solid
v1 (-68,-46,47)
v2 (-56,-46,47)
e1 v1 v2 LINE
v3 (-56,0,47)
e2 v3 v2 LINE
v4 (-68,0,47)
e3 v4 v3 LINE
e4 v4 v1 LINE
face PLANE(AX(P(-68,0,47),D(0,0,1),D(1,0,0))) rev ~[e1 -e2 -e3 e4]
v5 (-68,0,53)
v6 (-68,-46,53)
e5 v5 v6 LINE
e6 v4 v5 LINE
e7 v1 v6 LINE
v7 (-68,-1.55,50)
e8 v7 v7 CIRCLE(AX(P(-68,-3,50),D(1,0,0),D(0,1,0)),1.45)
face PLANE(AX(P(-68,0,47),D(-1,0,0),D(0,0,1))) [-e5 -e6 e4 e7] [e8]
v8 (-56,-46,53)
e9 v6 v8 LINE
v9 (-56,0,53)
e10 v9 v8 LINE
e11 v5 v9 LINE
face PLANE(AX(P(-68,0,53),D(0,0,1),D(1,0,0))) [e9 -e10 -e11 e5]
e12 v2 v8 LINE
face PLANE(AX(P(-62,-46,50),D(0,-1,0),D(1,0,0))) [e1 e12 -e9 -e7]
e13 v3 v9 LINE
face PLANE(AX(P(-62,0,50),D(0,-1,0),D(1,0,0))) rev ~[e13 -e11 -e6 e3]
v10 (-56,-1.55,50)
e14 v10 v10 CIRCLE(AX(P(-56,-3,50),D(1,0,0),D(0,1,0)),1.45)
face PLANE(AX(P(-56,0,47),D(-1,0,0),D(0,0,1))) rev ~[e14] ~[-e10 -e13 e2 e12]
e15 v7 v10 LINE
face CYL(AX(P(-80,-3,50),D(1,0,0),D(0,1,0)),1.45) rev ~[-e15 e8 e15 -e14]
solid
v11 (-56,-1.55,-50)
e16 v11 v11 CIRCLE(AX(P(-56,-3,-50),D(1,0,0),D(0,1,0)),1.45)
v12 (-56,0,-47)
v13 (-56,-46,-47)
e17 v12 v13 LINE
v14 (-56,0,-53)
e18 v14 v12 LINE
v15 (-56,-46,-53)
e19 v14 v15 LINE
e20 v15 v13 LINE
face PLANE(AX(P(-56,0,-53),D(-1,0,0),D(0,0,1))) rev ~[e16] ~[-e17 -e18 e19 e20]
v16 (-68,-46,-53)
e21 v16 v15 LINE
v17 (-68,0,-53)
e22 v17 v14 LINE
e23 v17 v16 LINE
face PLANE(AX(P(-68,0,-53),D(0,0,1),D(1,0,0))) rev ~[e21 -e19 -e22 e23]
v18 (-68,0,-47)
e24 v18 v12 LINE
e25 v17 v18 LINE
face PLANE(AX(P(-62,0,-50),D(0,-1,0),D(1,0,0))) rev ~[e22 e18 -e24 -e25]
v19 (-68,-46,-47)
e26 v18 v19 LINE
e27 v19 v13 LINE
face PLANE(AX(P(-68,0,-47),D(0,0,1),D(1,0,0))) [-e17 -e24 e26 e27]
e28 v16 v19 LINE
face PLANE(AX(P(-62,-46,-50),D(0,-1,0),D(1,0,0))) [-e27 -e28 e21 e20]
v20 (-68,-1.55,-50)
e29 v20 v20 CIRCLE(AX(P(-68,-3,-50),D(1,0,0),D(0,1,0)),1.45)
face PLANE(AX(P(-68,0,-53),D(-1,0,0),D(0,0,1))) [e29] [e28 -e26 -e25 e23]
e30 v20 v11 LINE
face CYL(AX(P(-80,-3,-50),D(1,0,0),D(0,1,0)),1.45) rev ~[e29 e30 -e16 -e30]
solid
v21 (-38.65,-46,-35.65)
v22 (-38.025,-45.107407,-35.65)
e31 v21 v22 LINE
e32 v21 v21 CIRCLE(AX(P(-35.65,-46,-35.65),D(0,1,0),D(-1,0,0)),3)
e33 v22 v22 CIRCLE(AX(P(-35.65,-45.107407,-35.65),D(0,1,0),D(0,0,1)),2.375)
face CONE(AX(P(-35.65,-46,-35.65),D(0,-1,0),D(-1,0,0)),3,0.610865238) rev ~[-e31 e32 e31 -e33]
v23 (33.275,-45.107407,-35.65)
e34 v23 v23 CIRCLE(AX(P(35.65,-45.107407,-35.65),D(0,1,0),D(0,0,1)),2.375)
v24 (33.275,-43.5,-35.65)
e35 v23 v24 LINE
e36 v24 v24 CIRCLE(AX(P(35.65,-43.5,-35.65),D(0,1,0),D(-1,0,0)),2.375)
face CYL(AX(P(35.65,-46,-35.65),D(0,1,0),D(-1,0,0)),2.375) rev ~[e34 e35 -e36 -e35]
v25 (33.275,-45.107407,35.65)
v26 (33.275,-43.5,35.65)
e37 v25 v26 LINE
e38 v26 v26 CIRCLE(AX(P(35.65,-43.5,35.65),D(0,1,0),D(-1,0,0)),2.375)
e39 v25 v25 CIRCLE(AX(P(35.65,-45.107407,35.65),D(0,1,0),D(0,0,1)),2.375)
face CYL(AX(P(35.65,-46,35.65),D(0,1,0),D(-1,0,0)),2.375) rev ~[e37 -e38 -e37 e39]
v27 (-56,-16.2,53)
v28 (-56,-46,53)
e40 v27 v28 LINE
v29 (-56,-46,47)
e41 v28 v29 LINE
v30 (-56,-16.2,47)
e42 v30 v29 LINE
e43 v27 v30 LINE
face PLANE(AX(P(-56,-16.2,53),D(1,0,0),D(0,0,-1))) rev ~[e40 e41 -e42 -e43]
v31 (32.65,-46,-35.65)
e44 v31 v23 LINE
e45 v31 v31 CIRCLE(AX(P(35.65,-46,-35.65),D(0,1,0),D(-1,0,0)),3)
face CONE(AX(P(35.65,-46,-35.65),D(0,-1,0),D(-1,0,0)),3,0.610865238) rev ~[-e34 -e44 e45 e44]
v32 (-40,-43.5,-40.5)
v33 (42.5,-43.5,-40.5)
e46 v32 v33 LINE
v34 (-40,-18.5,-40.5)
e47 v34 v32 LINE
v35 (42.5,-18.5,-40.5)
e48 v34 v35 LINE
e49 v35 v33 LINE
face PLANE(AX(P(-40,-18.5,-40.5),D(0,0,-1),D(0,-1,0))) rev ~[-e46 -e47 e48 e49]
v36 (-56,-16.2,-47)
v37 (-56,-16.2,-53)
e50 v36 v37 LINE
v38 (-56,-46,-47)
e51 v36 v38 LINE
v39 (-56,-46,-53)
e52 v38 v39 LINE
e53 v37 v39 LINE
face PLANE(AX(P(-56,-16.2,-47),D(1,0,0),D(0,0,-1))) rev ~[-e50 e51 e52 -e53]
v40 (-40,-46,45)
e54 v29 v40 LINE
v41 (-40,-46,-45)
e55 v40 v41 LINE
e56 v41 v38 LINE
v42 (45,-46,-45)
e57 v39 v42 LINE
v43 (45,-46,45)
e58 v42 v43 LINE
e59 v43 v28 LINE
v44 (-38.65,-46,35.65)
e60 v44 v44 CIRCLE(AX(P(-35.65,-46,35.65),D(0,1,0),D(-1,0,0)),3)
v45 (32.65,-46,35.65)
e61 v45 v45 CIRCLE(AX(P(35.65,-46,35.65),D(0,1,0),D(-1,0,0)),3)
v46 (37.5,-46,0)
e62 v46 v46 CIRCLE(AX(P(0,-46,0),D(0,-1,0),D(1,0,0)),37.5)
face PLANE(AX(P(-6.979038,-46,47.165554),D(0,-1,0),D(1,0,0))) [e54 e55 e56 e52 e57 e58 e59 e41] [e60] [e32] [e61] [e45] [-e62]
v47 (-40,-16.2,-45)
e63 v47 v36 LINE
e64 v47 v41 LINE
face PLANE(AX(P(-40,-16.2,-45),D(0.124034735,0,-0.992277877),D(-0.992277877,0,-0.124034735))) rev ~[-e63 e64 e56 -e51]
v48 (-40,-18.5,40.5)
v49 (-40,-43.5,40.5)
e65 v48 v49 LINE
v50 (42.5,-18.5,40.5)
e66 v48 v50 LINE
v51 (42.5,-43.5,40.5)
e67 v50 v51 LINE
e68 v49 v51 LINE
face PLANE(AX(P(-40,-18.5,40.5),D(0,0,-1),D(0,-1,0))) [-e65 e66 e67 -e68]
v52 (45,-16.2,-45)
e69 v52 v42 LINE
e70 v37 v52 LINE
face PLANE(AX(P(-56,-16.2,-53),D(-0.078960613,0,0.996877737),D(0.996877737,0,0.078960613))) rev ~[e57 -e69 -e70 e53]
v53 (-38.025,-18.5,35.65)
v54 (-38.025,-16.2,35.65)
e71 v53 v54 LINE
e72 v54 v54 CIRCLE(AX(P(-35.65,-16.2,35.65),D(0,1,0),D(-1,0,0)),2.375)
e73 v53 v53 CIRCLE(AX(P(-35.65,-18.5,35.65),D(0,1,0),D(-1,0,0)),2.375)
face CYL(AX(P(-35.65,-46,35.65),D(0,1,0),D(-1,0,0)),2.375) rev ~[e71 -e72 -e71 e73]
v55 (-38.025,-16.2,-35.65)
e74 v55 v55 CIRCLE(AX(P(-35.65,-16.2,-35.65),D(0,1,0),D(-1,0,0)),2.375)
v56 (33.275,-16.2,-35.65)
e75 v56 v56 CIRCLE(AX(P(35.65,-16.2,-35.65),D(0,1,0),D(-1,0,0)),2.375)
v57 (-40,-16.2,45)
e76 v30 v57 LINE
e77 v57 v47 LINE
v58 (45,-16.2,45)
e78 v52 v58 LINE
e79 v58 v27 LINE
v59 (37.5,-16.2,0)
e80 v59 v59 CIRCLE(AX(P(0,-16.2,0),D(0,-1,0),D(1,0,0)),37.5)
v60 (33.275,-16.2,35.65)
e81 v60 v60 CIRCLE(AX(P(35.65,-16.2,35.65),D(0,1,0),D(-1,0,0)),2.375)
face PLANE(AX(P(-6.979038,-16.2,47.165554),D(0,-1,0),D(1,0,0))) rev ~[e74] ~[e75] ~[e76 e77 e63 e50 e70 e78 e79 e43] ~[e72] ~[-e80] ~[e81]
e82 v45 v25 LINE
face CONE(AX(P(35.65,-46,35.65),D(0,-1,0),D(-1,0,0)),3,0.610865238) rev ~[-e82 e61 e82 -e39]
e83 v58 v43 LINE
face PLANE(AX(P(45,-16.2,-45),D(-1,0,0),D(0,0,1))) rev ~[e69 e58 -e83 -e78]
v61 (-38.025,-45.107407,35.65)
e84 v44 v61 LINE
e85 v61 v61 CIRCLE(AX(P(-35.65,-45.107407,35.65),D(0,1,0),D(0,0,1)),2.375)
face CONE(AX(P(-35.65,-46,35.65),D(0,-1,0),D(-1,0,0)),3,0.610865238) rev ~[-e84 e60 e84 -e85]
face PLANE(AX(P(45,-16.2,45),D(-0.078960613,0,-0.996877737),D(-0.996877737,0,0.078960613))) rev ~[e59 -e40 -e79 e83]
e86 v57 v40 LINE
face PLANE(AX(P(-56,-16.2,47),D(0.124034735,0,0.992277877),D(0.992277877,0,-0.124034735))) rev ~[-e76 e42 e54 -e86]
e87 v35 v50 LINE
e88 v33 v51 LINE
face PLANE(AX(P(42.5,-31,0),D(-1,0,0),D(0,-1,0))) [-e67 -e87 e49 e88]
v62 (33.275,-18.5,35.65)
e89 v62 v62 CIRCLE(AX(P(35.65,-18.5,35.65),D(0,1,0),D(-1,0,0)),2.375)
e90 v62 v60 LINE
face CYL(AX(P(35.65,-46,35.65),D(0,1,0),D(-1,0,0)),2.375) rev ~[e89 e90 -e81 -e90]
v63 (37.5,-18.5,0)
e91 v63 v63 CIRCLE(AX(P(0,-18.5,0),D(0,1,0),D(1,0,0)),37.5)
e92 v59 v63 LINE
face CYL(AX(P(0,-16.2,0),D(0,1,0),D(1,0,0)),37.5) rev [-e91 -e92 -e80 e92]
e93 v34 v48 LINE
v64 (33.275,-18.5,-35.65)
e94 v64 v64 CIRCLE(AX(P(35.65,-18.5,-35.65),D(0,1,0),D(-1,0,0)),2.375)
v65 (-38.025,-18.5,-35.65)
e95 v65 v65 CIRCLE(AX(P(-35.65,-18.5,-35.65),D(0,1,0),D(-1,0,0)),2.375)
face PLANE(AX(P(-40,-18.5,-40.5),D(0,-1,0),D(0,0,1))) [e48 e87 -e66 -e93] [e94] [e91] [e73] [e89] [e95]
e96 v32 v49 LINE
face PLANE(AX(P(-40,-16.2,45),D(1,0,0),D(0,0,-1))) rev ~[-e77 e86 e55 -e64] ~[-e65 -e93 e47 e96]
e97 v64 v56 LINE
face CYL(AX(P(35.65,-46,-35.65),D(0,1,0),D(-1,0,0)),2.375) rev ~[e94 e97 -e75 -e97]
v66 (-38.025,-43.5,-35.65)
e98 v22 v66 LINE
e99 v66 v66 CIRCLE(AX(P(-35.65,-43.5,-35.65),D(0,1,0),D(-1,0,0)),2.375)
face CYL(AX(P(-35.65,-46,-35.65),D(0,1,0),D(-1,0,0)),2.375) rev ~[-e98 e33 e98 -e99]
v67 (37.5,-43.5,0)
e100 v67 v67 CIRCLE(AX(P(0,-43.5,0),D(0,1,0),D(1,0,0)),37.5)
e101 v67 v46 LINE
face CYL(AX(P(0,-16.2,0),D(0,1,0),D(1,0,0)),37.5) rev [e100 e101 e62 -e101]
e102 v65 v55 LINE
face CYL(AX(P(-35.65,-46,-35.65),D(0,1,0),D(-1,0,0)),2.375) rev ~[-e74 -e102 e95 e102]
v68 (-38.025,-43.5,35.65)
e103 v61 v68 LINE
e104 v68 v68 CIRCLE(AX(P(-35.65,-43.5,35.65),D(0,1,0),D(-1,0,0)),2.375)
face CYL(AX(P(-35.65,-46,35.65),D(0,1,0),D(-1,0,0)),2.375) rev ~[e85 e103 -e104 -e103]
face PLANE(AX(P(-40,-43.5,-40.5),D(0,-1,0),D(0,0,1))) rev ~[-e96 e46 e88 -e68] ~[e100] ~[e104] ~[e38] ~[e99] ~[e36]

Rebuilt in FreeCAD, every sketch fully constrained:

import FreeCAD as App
import Part
import Sketcher


def add_polygon(sketch, points):
    """Adds a closed chain of lines whose ends are joined by coincident constraints."""
    first, n = sketch.GeometryCount, len(points)
    for a, b in zip(points, points[1:] + points[:1]):
        sketch.addGeometry(Part.LineSegment(App.Vector(*a, 0), App.Vector(*b, 0)), False)
    for i in range(n):
        sketch.addConstraint(Sketcher.Constraint("Coincident", first + i, 2, first + (i + 1) % n, 1))

doc = App.newDocument("Part")
body = doc.addObject("PartDesign::Body", "Body")

# Sketch on XZ plane
sketch1 = body.newObject("Sketcher::SketchObject", "Sketch")
sketch1.AttachmentSupport = (doc.getObject("XZ_Plane"), [""])
sketch1.MapMode = "FlatFace"
add_polygon(sketch1, [(-68, 53), (-68, 47), (-56, 47), (-56, 53)])  # lines 0-3
sketch1.addConstraint(Sketcher.Constraint("Vertical", 0))
sketch1.addConstraint(Sketcher.Constraint("Horizontal", 1))
sketch1.addConstraint(Sketcher.Constraint("Vertical", 2))
sketch1.addConstraint(Sketcher.Constraint("Horizontal", 3))
sketch1.addConstraint(Sketcher.Constraint("DistanceX", 1, 1, 1, 2, 12.0))
sketch1.addConstraint(Sketcher.Constraint("DistanceY", 0, 2, 0, 1, 6.0))
sketch1.addConstraint(Sketcher.Constraint("DistanceX", 0, 2, -1, 1, 68.0))
sketch1.addConstraint(Sketcher.Constraint("DistanceY", -1, 1, 0, 2, 47.0))
pad1 = body.newObject("PartDesign::Pad", "Pad")
pad1.Profile = sketch1
pad1.Length = 46

# Sketch on YZ plane
sketch2 = body.newObject("Sketcher::SketchObject", "Sketch001")
sketch2.AttachmentSupport = (doc.getObject("YZ_Plane"), [""])
sketch2.MapMode = "FlatFace"
sketch2.AttachmentOffset = App.Placement(App.Vector(0, 0, -68), App.Rotation())
sketch2.addGeometry(Part.Circle(App.Vector(-3, 50, 0), App.Vector(0, 0, 1), 1.45), False)
sketch2.addConstraint(Sketcher.Constraint("Diameter", 0, 2.9))
sketch2.addConstraint(Sketcher.Constraint("DistanceX", 0, 3, -1, 1, 3.0))
sketch2.addConstraint(Sketcher.Constraint("DistanceY", -1, 1, 0, 3, 50.0))
doc.recompute()
hole = body.newObject("PartDesign::Hole", "Hole")
hole.Profile = sketch2
hole.ThreadType = "None"
hole.Diameter = 2.9
hole.DepthType = "Dimension"
hole.Depth = 12
hole.DrillPoint = "Angled"
hole.DrillPointAngle = 118
hole.Reversed = True
body2 = doc.addObject("PartDesign::Body", "Body001")

# Sketch on XZ plane
sketch3 = body2.newObject("Sketcher::SketchObject", "Sketch002")
sketch3.AttachmentSupport = (doc.getObject("XZ_Plane001"), [""])
sketch3.MapMode = "FlatFace"
add_polygon(sketch3, [(-68, -47), (-68, -53), (-56, -53), (-56, -47)])  # lines 0-3
sketch3.addConstraint(Sketcher.Constraint("Vertical", 0))
sketch3.addConstraint(Sketcher.Constraint("Horizontal", 1))
sketch3.addConstraint(Sketcher.Constraint("Vertical", 2))
sketch3.addConstraint(Sketcher.Constraint("Horizontal", 3))
sketch3.addConstraint(Sketcher.Constraint("DistanceX", 1, 1, 1, 2, 12.0))
sketch3.addConstraint(Sketcher.Constraint("DistanceY", 0, 2, 0, 1, 6.0))
sketch3.addConstraint(Sketcher.Constraint("DistanceX", 0, 2, -1, 1, 68.0))
sketch3.addConstraint(Sketcher.Constraint("DistanceY", 0, 2, -1, 1, 53.0))
pad2 = body2.newObject("PartDesign::Pad", "Pad001")
pad2.Profile = sketch3
pad2.Length = 46

# Sketch on YZ plane
sketch4 = body2.newObject("Sketcher::SketchObject", "Sketch003")
sketch4.AttachmentSupport = (doc.getObject("YZ_Plane001"), [""])
sketch4.MapMode = "FlatFace"
sketch4.AttachmentOffset = App.Placement(App.Vector(0, 0, -68), App.Rotation())
sketch4.addGeometry(Part.Circle(App.Vector(-3, -50, 0), App.Vector(0, 0, 1), 1.45), False)
sketch4.addConstraint(Sketcher.Constraint("Diameter", 0, 2.9))
sketch4.addConstraint(Sketcher.Constraint("DistanceX", 0, 3, -1, 1, 3.0))
sketch4.addConstraint(Sketcher.Constraint("DistanceY", 0, 3, -1, 1, 50.0))
doc.recompute()
hole2 = body2.newObject("PartDesign::Hole", "Hole001")
hole2.Profile = sketch4
hole2.ThreadType = "None"
hole2.Diameter = 2.9
hole2.DepthType = "Dimension"
hole2.Depth = 12
hole2.DrillPoint = "Angled"
hole2.DrillPointAngle = 118
hole2.Reversed = True
body3 = doc.addObject("PartDesign::Body", "Body002")

# Sketch on XZ plane
sketch5 = body3.newObject("Sketcher::SketchObject", "Sketch004")
sketch5.AttachmentSupport = (doc.getObject("XZ_Plane002"), [""])
sketch5.MapMode = "FlatFace"
sketch5.AttachmentOffset = App.Placement(App.Vector(0, 0, 16.2), App.Rotation())
add_polygon(sketch5, [(-56, 47), (-40, 45), (-40, -45), (-56, -47), (-56, -53), (45, -45), (45, 45), (-56, 53)])  # lines 0-7
sketch5.addGeometry(Part.Circle(App.Vector(0, 0, 0), App.Vector(0, 0, 1), 37.5), False)  # 8
sketch5.addConstraint(Sketcher.Constraint("Vertical", 1))
sketch5.addConstraint(Sketcher.Constraint("Vertical", 3))
sketch5.addConstraint(Sketcher.Constraint("Vertical", 5))
sketch5.addConstraint(Sketcher.Constraint("Vertical", 7))
sketch5.addConstraint(Sketcher.Constraint("Coincident", 8, 3, -1, 1))
sketch5.addConstraint(Sketcher.Constraint("Symmetric", 3, 2, 6, 2, -1))
sketch5.addConstraint(Sketcher.Constraint("Horizontal", 1, 2, 4, 2))
sketch5.addConstraint(Sketcher.Constraint("Horizontal", 0, 2, 5, 2))
sketch5.addConstraint(Sketcher.Constraint("Equal", 3, 7))
sketch5.addConstraint(Sketcher.Constraint("Equal", 0, 2))
sketch5.addConstraint(Sketcher.Constraint("Diameter", 8, 75.0))
sketch5.addConstraint(Sketcher.Constraint("DistanceY", 1, 2, 1, 1, 90.0))
sketch5.addConstraint(Sketcher.Constraint("DistanceY", 3, 2, 3, 1, 6.0))
sketch5.addConstraint(Sketcher.Constraint("DistanceX", 0, 2, -1, 1, 40.0))
sketch5.addConstraint(Sketcher.Constraint("DistanceX", 2, 2, -1, 1, 56.0))
sketch5.addConstraint(Sketcher.Constraint("DistanceY", 2, 2, -1, 1, 47.0))
sketch5.addConstraint(Sketcher.Constraint("DistanceX", -1, 1, 4, 2, 45.0))
pad3 = body3.newObject("PartDesign::Pad", "Pad002")
pad3.Profile = sketch5
pad3.Length = 29.8

# Sketch on YZ plane
sketch6 = body3.newObject("Sketcher::SketchObject", "Sketch005")
sketch6.AttachmentSupport = (doc.getObject("YZ_Plane002"), [""])
sketch6.MapMode = "FlatFace"
sketch6.AttachmentOffset = App.Placement(App.Vector(0, 0, -40), App.Rotation())
add_polygon(sketch6, [(-18.5, 40.5), (-18.5, -40.5), (-43.5, -40.5), (-43.5, 40.5)])  # lines 0-3
sketch6.addConstraint(Sketcher.Constraint("Vertical", 0))
sketch6.addConstraint(Sketcher.Constraint("Horizontal", 1))
sketch6.addConstraint(Sketcher.Constraint("Vertical", 2))
sketch6.addConstraint(Sketcher.Constraint("Horizontal", 3))
sketch6.addConstraint(Sketcher.Constraint("DistanceX", 1, 2, 1, 1, 25.0))
sketch6.addConstraint(Sketcher.Constraint("DistanceY", 0, 2, 0, 1, 81.0))
sketch6.addConstraint(Sketcher.Constraint("DistanceX", 0, 2, -1, 1, 18.5))
sketch6.addConstraint(Sketcher.Constraint("DistanceY", 0, 2, -1, 1, 40.5))
pocket1 = body3.newObject("PartDesign::Pocket", "Pocket")
pocket1.Profile = sketch6
pocket1.Length = 82.5
pocket1.Reversed = True

# Sketch on XZ plane
sketch7 = body3.newObject("Sketcher::SketchObject", "Sketch006")
sketch7.AttachmentSupport = (doc.getObject("XZ_Plane002"), [""])
sketch7.MapMode = "FlatFace"
sketch7.AttachmentOffset = App.Placement(App.Vector(0, 0, 46), App.Rotation())
sketch7.addGeometry(Part.Circle(App.Vector(35.65, 35.65, 0), App.Vector(0, 0, 1), 2.375), False)
sketch7.addGeometry(Part.Circle(App.Vector(35.65, -35.65, 0), App.Vector(0, 0, 1), 2.375), False)
sketch7.addGeometry(Part.Circle(App.Vector(-35.65, -35.65, 0), App.Vector(0, 0, 1), 2.375), False)
sketch7.addGeometry(Part.Circle(App.Vector(-35.65, 35.65, 0), App.Vector(0, 0, 1), 2.375), False)
sketch7.addConstraint(Sketcher.Constraint("Equal", 0, 1))
sketch7.addConstraint(Sketcher.Constraint("Equal", 1, 2))
sketch7.addConstraint(Sketcher.Constraint("Equal", 2, 3))
sketch7.addConstraint(Sketcher.Constraint("Symmetric", 0, 3, 2, 3, -1, 1))
sketch7.addConstraint(Sketcher.Constraint("Symmetric", 1, 3, 3, 3, -1, 1))
sketch7.addConstraint(Sketcher.Constraint("Symmetric", 1, 3, 2, 3, -2))
sketch7.addConstraint(Sketcher.Constraint("Diameter", 0, 4.75))
sketch7.addConstraint(Sketcher.Constraint("DistanceY", 1, 3, 0, 3, 71.3))
sketch7.addConstraint(Sketcher.Constraint("DistanceX", 2, 3, 1, 3, 71.3))
doc.recompute()
hole3 = body3.newObject("PartDesign::Hole", "Hole002")
hole3.Profile = sketch7
hole3.ThreadType = "None"
hole3.Diameter = 4.75
hole3.DepthType = "Dimension"
hole3.Depth = 30
hole3.DrillPoint = "Angled"
hole3.DrillPointAngle = 118
hole3.HoleCutType = "Countersink"
hole3.HoleCutDiameter = 6
hole3.HoleCutCountersinkAngle = 70

doc.recompute()
